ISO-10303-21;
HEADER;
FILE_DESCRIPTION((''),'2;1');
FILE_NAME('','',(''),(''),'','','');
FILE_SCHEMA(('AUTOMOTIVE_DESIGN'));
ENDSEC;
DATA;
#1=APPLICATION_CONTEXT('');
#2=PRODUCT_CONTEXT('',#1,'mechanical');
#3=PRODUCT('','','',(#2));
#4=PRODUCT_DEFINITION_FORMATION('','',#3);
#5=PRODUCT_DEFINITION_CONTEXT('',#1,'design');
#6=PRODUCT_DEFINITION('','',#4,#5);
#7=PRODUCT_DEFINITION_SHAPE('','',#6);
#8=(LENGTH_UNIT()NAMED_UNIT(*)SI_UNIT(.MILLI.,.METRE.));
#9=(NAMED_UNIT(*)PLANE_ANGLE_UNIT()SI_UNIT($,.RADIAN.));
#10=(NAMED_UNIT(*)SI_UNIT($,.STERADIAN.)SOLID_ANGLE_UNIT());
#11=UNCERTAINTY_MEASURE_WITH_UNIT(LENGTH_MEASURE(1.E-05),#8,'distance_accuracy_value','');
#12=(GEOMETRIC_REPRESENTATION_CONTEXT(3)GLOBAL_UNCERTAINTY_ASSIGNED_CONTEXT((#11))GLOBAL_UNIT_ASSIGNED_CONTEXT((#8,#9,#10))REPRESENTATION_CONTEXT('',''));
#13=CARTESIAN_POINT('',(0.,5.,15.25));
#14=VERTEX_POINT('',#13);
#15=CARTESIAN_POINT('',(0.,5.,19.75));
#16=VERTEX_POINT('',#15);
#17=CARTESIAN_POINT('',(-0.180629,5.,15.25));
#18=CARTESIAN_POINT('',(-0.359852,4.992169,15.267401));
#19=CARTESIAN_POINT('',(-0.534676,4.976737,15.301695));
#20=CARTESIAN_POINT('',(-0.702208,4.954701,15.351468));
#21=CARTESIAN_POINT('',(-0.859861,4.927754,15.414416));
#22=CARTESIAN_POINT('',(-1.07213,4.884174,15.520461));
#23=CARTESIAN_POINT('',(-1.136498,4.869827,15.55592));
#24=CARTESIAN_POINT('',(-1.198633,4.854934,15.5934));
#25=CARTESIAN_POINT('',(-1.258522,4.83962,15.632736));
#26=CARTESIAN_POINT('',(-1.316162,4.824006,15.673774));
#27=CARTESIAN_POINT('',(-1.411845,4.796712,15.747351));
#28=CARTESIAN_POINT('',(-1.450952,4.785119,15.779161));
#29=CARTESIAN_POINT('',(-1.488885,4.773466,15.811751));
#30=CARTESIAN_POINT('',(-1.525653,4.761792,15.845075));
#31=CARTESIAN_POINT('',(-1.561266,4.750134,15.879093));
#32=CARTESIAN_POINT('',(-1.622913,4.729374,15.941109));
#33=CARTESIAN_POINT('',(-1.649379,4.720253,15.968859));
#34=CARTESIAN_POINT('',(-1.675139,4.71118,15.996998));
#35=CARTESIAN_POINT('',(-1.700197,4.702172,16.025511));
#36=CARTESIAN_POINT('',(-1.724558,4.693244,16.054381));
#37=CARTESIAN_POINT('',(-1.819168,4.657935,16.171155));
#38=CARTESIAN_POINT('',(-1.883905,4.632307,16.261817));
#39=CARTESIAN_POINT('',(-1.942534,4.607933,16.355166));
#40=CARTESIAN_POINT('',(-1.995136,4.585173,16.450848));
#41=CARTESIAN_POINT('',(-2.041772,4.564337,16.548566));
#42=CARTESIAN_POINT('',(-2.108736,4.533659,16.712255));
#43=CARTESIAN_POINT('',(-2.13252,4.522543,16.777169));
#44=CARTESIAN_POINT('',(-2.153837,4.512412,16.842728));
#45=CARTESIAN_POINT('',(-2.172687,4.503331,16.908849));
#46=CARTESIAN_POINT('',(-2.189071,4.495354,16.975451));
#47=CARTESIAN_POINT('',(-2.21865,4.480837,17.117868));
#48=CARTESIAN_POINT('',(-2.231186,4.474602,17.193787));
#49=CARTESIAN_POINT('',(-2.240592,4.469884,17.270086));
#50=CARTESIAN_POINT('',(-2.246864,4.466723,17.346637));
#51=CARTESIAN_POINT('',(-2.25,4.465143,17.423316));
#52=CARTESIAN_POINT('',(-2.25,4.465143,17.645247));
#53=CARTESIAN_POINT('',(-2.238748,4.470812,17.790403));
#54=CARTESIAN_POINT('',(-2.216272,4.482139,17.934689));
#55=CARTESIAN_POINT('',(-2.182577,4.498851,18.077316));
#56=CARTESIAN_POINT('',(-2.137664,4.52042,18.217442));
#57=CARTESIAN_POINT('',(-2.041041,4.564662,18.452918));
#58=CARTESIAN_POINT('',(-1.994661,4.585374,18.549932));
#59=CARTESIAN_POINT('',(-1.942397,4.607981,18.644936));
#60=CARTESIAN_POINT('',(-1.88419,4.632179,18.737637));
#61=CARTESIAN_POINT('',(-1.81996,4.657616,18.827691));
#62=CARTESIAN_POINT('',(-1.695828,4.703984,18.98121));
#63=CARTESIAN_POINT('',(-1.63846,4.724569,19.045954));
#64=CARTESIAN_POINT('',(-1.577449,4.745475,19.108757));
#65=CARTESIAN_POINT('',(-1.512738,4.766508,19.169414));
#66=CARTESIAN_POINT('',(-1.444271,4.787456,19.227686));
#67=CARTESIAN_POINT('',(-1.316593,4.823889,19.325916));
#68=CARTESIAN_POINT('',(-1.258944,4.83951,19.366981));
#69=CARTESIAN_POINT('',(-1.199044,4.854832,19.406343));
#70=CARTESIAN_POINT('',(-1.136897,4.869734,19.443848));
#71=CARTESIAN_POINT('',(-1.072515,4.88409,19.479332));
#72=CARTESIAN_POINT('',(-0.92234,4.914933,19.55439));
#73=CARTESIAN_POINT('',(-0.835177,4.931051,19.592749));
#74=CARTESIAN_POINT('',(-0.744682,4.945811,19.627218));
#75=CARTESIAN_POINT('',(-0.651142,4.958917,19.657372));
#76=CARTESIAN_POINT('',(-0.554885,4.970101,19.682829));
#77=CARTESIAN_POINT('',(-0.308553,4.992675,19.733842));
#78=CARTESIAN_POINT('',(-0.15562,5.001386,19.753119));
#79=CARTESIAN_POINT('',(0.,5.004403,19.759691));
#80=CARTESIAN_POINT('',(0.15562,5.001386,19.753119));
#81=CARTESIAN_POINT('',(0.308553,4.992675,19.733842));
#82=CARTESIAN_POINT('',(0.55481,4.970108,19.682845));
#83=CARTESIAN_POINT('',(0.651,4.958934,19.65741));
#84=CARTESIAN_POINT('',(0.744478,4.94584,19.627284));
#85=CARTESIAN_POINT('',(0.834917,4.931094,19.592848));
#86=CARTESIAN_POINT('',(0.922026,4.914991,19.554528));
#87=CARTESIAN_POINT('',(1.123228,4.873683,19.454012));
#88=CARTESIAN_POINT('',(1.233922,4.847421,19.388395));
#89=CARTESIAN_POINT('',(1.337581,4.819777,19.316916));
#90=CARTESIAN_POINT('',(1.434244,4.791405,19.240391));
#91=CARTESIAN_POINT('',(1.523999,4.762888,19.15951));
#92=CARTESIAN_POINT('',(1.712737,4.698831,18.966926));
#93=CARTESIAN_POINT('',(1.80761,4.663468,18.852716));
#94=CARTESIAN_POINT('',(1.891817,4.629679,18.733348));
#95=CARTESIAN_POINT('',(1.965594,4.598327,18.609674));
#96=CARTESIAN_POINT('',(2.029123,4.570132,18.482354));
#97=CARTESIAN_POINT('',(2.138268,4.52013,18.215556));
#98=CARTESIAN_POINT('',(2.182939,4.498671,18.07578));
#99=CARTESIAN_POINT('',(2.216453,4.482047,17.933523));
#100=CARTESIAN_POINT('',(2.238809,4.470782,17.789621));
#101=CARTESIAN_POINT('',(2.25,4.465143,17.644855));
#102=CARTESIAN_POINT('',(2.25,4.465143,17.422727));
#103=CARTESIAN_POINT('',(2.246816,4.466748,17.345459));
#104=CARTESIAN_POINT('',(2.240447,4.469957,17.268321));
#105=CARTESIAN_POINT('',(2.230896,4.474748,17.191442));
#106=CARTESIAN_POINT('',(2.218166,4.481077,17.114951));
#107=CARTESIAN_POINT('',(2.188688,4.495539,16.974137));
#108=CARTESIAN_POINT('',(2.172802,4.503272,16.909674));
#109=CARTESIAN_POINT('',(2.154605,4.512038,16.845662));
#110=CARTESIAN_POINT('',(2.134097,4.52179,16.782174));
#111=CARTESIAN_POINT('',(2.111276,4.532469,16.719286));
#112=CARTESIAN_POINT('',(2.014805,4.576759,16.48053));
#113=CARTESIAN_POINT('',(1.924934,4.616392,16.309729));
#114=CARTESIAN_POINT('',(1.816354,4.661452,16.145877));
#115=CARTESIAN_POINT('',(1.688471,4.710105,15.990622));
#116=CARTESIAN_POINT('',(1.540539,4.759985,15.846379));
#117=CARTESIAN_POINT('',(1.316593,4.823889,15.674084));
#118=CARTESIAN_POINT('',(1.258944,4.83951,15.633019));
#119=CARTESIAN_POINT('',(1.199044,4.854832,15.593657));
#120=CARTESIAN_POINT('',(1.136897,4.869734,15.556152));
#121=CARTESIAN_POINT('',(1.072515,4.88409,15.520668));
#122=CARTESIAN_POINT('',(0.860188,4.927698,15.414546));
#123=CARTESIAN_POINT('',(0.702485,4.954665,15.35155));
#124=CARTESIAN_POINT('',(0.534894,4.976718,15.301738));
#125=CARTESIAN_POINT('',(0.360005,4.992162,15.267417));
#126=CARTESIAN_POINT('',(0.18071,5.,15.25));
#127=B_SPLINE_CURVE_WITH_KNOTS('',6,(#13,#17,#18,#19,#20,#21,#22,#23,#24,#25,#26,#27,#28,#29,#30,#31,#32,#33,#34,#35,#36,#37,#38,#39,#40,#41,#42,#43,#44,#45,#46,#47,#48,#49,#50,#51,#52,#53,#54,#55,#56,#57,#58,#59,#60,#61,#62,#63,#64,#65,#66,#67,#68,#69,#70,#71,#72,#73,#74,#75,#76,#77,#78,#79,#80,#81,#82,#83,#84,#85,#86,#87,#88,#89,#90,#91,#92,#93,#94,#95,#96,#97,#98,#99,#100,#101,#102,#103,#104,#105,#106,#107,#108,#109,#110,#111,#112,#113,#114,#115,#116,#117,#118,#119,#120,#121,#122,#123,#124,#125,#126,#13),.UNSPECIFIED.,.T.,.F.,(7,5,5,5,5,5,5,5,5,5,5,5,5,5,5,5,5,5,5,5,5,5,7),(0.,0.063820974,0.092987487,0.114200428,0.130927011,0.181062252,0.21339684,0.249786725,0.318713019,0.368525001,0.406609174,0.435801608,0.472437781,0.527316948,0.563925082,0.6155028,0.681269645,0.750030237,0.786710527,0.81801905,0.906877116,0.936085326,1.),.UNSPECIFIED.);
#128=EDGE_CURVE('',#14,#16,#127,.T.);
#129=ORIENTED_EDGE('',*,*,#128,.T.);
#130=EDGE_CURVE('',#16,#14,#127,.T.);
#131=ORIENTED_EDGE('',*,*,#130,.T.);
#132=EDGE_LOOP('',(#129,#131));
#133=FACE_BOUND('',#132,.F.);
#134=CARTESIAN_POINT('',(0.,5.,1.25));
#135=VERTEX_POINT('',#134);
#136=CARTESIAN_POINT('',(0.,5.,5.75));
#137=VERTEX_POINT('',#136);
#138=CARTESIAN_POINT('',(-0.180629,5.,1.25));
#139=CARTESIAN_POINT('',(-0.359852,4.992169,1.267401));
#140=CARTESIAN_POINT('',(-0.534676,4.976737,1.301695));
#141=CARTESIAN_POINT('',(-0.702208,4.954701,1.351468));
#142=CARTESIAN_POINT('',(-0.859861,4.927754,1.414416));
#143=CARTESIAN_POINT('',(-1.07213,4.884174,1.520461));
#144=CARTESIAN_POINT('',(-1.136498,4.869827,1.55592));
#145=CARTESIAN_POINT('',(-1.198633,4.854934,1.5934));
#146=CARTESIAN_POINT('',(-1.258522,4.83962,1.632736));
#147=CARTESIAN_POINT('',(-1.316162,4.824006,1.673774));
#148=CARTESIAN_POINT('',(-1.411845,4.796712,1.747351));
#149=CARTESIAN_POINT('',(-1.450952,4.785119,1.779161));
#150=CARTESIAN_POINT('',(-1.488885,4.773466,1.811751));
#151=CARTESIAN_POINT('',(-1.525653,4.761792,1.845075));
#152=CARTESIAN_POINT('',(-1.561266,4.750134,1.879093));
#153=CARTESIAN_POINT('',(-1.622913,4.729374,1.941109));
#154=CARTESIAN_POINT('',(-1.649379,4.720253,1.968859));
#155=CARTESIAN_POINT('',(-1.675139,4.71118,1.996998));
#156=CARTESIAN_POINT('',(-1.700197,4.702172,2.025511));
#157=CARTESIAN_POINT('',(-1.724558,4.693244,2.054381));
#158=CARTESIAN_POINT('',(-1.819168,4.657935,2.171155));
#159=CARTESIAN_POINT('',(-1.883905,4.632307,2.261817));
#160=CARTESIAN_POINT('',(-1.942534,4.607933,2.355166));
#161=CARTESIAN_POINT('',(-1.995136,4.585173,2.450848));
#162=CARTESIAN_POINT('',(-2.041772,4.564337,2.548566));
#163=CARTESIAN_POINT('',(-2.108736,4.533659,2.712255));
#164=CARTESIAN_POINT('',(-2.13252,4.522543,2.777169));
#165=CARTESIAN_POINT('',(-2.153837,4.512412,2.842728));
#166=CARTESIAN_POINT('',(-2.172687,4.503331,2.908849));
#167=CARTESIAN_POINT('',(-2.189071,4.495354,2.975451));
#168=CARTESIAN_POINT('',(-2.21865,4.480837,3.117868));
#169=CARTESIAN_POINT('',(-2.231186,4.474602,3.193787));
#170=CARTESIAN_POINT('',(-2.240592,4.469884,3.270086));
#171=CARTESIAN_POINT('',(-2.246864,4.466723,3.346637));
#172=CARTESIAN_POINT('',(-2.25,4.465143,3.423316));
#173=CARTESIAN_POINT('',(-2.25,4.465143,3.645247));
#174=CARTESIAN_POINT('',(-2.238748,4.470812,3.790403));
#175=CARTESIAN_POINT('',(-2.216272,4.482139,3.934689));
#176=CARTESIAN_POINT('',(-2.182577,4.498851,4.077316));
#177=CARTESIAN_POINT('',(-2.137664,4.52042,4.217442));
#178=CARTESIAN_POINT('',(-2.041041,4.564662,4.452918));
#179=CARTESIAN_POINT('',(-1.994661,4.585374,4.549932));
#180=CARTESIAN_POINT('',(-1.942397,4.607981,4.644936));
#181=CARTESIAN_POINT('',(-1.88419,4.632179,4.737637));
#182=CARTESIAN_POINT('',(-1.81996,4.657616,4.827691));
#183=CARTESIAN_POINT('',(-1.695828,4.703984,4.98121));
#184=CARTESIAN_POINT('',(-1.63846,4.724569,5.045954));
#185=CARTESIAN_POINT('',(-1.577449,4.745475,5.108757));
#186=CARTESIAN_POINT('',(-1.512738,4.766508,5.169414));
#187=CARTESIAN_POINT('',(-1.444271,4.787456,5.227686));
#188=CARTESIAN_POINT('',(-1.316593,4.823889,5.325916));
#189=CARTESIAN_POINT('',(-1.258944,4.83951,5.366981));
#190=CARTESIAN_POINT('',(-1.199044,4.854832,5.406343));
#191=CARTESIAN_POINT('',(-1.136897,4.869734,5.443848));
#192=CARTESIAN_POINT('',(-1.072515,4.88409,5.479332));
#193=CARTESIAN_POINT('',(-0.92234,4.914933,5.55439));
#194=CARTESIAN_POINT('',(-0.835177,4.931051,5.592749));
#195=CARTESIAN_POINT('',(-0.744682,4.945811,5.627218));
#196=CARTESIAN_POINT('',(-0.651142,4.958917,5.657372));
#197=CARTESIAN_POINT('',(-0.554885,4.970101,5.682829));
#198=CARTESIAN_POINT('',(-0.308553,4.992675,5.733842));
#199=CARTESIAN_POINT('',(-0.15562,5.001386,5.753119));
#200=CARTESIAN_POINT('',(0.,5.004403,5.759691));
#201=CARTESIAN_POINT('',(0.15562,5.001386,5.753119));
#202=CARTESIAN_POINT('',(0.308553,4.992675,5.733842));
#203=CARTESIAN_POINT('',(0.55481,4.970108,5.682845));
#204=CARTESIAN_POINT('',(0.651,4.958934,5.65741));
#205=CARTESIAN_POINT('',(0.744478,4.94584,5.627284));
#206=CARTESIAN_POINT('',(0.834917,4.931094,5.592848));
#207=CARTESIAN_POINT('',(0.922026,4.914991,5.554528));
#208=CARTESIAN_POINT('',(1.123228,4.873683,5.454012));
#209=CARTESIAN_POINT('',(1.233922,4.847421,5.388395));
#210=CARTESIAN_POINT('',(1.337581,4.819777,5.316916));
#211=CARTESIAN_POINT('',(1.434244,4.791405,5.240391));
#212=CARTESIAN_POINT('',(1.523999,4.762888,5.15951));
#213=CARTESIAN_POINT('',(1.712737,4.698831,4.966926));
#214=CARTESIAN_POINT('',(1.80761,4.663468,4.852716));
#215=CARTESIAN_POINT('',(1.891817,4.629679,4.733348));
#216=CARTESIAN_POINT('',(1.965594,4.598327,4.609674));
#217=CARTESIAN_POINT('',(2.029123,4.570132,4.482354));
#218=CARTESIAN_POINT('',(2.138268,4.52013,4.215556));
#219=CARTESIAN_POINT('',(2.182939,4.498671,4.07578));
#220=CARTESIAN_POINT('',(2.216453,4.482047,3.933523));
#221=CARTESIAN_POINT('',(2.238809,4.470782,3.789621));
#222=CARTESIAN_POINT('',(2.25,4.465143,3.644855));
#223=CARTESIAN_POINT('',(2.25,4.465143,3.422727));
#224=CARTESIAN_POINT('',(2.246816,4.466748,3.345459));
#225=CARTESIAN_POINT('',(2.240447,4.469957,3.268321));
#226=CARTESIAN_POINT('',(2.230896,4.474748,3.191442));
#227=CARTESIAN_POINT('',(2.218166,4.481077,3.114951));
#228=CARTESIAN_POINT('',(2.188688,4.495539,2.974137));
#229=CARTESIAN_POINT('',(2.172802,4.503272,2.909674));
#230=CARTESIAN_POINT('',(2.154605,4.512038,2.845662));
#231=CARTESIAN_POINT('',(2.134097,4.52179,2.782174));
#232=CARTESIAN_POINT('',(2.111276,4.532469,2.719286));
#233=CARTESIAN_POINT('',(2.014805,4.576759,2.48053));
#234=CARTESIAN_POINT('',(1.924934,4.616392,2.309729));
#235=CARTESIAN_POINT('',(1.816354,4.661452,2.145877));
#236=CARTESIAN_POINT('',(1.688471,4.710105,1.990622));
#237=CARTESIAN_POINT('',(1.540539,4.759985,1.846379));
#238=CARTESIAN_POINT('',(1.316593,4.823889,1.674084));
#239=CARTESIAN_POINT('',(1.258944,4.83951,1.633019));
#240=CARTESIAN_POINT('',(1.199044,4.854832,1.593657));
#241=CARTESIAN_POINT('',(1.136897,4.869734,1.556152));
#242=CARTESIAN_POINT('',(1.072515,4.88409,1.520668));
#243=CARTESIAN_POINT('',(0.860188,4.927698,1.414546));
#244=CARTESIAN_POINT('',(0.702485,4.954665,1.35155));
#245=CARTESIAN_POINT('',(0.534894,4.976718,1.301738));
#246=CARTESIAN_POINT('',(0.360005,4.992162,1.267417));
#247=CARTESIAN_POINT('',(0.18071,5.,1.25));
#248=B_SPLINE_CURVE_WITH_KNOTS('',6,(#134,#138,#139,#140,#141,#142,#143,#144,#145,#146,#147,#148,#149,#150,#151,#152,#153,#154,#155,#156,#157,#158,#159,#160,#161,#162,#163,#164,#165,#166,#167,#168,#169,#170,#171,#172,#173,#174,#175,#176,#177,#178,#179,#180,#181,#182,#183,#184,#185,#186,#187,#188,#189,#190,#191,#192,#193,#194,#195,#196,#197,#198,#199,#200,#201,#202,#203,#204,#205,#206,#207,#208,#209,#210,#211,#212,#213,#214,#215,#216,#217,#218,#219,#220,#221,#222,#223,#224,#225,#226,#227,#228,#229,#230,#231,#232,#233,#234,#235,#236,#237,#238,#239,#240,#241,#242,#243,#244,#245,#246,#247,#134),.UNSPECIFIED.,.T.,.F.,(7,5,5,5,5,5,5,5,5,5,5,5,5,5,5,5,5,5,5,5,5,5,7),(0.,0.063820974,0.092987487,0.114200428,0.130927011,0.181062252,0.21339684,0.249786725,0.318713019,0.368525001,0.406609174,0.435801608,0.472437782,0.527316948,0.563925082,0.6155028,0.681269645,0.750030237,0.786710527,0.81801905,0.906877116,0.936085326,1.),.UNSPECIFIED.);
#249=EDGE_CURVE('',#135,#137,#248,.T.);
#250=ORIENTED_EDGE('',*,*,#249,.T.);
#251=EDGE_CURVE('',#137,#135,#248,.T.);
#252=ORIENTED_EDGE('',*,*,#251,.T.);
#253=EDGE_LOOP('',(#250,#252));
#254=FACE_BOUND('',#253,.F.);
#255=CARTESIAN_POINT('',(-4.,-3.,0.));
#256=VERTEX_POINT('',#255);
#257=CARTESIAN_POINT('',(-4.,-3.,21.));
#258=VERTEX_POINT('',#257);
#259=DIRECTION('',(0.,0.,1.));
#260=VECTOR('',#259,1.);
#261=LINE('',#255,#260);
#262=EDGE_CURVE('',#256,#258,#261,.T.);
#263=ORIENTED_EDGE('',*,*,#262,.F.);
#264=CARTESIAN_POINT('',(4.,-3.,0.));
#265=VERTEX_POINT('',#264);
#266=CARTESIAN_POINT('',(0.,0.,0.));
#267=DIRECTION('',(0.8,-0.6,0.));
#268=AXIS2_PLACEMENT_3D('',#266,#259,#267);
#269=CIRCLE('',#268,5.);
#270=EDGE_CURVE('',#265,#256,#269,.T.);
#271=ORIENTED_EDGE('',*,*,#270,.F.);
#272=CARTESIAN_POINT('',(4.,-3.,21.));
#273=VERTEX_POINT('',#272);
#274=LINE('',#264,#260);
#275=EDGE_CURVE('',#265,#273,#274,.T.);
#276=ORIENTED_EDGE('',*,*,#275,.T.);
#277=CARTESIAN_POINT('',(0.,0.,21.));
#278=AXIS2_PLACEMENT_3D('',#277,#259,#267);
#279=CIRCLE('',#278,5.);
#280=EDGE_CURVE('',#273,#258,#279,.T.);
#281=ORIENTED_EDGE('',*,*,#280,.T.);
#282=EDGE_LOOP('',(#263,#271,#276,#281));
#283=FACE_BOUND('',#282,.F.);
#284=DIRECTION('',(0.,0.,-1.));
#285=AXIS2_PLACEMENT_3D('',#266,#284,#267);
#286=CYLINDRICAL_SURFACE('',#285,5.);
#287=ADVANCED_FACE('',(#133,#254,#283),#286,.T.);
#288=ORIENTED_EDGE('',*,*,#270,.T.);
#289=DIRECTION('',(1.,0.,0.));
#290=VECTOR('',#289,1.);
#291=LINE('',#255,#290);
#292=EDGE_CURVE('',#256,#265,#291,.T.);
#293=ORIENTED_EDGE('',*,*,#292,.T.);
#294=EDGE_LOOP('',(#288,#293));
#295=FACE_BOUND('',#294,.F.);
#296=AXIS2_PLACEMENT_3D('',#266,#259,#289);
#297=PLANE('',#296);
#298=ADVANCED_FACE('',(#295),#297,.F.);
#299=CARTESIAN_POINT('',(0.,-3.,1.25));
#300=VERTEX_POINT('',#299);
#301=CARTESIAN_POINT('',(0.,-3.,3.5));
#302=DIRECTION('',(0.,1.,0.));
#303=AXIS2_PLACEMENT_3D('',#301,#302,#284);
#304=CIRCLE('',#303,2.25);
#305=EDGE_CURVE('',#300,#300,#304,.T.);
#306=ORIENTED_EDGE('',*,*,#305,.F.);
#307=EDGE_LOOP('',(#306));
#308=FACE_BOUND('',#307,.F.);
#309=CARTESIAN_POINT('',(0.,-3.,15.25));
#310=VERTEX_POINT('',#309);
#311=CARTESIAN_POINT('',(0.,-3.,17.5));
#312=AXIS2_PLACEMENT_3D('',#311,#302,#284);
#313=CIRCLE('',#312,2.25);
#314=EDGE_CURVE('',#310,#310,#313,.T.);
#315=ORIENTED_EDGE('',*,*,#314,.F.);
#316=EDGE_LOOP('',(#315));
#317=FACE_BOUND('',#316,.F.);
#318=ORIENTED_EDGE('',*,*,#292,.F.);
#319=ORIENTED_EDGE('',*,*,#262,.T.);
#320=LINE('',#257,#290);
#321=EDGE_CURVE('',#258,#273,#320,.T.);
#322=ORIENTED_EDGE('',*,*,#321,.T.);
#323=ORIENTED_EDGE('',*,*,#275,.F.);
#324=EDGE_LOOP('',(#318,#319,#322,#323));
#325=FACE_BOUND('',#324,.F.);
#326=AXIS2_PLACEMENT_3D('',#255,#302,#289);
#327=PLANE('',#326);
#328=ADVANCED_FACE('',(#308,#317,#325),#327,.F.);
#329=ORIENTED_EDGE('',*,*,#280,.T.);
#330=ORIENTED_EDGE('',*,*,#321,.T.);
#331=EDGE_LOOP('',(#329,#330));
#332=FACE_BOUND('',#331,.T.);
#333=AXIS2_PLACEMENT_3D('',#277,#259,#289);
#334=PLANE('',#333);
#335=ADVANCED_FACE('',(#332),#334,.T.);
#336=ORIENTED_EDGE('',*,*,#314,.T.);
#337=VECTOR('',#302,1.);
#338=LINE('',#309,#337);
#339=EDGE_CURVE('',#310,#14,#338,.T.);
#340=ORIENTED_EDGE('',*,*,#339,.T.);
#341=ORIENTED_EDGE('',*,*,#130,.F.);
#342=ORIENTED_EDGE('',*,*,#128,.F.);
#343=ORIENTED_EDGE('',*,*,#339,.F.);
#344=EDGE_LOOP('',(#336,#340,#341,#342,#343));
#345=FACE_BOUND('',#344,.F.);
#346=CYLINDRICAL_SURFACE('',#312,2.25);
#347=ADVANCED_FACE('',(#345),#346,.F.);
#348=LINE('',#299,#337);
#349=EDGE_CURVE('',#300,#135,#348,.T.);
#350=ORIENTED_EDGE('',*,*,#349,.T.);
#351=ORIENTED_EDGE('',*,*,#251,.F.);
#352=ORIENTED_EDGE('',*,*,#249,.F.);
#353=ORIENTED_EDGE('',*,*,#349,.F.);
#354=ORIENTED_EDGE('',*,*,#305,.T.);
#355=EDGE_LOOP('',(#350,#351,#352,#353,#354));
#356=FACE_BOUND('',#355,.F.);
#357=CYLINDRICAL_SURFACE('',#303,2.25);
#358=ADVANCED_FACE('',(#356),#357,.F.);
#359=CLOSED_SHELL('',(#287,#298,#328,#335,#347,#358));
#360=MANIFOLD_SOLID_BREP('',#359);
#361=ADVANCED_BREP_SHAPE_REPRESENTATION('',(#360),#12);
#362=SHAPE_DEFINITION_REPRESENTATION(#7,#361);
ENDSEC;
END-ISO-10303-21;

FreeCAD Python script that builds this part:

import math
import FreeCAD as App
import Part
import Sketcher
from FreeCAD import Vector

doc = App.newDocument("Part")
body = doc.addObject("PartDesign::Body", "Body")

sketch1 = doc.addObject("Sketcher::SketchObject", "Sketch")
body.addObject(sketch1)
sketch1.AttachmentSupport = (doc.XY_Plane, [""])
sketch1.MapMode = "FlatFace"
sketch1.addGeometry(Part.LineSegment(Vector(-4, -3, 0), Vector(4, -3, 0)), False)
sketch1.addGeometry(Part.ArcOfCircle(Part.Circle(Vector(0, 0, 0), Vector(0, 0, 1), 5), math.radians(-37), math.radians(217)), False)
sketch1.addConstraint(Sketcher.Constraint("Coincident", 0, 1, 1, 2))
sketch1.addConstraint(Sketcher.Constraint("Coincident", 1, 1, 0, 2))
sketch1.addConstraint(Sketcher.Constraint("Horizontal", 0))
sketch1.addConstraint(Sketcher.Constraint("Coincident", 1, 3, -1, 1))
sketch1.addConstraint(Sketcher.Constraint("Radius", 1, 5.0))
sketch1.addConstraint(Sketcher.Constraint("DistanceX", 0, 1, 0, 2, 8.0))
pad1 = doc.addObject("PartDesign::Pad", "Pad")
body.addObject(pad1)
pad1.Profile = sketch1
pad1.Length = 21

sketch2 = doc.addObject("Sketcher::SketchObject", "Sketch001")
body.addObject(sketch2)
sketch2.AttachmentSupport = (doc.XZ_Plane, [""])
sketch2.MapMode = "FlatFace"
sketch2.AttachmentOffset = App.Placement(Vector(0, 0, 3), App.Rotation())
sketch2.addGeometry(Part.Circle(Vector(0, 17.5, 0), Vector(0, 0, 1), 2.2), False)
sketch2.addGeometry(Part.Circle(Vector(0, 3.5, 0), Vector(0, 0, 1), 2.2), False)
sketch2.addConstraint(Sketcher.Constraint("Equal", 0, 1))
sketch2.addConstraint(Sketcher.Constraint("PointOnObject", 0, 3, -2))
sketch2.addConstraint(Sketcher.Constraint("PointOnObject", 1, 3, -2))
sketch2.addConstraint(Sketcher.Constraint("Diameter", 0, 4.5))
sketch2.addConstraint(Sketcher.Constraint("DistanceY", 1, 3, 0, 3, 14.0))
sketch2.addConstraint(Sketcher.Constraint("DistanceY", -1, 1, 0, 3, 17.5))
doc.recompute()
hole = doc.addObject("PartDesign::Hole", "Hole")
body.addObject(hole)
hole.Profile = sketch2
hole.ThreadType = "None"
hole.Diameter = 4.5
hole.DepthType = "Dimension"
hole.Depth = 8
hole.DrillPoint = "Angled"
hole.DrillPointAngle = 118

doc.recompute()
